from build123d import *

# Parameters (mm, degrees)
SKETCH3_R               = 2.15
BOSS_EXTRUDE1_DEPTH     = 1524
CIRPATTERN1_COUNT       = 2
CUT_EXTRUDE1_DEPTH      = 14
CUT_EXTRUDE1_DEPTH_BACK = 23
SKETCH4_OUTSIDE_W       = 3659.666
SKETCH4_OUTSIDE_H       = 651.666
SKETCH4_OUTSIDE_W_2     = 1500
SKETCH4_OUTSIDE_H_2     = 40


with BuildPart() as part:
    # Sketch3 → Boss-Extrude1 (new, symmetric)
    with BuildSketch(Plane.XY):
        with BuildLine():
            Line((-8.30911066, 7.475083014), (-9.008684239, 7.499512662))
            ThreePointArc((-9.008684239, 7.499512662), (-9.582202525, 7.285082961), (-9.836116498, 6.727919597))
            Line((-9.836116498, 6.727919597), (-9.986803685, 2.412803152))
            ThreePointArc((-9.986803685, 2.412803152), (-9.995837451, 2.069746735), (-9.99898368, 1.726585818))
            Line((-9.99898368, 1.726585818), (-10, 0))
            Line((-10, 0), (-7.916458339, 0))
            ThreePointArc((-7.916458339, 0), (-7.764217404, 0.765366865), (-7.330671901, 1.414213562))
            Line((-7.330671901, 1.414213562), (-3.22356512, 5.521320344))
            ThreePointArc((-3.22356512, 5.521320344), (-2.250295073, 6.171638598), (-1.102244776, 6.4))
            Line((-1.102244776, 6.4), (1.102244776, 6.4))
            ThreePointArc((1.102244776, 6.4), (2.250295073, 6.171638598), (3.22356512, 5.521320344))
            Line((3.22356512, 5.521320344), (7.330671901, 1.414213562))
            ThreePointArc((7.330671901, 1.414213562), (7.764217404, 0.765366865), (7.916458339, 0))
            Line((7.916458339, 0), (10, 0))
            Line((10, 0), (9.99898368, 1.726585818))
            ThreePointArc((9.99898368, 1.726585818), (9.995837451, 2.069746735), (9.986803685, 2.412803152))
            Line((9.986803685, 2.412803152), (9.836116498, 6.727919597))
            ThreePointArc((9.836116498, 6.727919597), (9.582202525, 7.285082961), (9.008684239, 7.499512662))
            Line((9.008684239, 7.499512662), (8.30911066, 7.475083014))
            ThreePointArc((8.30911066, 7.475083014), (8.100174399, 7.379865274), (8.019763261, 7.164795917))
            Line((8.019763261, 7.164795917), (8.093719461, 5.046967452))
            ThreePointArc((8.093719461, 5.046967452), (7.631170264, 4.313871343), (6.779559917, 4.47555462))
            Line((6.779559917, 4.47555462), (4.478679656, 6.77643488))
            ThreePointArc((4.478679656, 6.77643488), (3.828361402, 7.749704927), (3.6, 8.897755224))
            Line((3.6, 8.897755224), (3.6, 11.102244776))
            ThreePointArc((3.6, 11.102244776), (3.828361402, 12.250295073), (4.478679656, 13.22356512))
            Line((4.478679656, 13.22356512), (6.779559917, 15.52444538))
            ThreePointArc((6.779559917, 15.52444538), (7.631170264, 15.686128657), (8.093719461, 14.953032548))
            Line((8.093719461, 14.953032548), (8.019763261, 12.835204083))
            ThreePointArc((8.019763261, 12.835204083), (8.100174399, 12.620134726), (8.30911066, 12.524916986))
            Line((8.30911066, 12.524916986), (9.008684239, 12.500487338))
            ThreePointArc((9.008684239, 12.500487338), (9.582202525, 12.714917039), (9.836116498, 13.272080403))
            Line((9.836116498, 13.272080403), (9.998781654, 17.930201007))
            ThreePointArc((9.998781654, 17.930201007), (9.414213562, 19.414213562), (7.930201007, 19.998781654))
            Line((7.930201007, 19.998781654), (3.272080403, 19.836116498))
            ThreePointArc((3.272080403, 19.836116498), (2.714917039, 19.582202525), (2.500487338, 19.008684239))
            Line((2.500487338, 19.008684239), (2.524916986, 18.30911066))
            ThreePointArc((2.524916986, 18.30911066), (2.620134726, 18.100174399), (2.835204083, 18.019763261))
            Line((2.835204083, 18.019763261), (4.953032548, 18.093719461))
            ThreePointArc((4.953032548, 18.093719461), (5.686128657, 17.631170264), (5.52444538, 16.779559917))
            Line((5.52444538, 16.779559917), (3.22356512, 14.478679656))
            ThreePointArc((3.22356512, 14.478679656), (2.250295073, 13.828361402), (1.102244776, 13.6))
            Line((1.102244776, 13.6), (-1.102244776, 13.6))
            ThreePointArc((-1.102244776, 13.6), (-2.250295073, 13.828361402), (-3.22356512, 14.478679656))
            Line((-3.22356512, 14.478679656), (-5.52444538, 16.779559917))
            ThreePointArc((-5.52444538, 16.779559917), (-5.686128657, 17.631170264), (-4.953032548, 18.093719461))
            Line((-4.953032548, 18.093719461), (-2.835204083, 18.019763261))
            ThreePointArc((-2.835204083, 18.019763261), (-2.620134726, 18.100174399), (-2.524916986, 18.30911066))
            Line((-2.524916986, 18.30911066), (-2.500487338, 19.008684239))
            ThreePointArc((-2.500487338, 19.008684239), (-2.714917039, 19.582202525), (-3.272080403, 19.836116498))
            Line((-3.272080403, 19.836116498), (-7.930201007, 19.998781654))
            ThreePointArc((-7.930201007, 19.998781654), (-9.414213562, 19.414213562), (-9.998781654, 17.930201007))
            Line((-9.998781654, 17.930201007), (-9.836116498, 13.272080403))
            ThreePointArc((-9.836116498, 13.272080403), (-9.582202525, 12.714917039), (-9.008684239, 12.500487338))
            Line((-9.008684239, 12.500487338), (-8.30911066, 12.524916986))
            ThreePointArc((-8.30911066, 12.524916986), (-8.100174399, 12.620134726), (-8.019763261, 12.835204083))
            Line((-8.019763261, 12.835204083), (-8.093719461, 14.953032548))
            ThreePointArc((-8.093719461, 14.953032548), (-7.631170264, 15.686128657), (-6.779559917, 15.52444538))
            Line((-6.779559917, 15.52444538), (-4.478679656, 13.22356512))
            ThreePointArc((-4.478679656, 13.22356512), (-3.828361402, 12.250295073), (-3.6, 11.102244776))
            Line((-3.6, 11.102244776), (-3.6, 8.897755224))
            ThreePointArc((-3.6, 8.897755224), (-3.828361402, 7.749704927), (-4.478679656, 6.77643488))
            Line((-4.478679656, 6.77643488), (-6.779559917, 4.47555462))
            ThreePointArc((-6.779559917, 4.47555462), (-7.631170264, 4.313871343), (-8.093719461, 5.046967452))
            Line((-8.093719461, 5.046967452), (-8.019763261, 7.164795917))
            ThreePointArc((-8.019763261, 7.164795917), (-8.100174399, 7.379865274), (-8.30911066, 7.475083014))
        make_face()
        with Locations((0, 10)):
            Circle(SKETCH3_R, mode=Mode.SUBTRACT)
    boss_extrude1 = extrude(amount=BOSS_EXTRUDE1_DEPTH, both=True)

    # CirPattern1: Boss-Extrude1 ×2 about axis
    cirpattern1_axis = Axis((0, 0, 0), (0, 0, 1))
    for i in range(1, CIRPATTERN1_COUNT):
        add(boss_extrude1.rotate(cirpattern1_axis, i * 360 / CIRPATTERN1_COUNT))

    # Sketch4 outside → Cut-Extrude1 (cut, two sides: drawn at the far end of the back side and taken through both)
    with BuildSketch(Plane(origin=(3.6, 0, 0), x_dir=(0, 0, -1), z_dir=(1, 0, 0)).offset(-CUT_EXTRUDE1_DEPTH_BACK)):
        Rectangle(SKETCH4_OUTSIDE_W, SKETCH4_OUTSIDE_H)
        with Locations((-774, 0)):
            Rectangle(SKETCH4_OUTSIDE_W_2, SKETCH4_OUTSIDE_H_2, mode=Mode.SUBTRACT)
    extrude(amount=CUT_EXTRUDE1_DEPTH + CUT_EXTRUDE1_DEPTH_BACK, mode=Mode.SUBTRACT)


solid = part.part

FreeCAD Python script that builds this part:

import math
import FreeCAD as App
import Part
import Sketcher
Q = App.Units.Quantity

doc = App.newDocument("Part")
body = doc.addObject("PartDesign::Body", "Body")

# Sketch on XY plane
sketch1 = body.newObject("Sketcher::SketchObject", "Sketch")
sketch1.AttachmentSupport = (doc.getObject("XY_Plane"), [""])
sketch1.MapMode = "FlatFace"
sketch1.addGeometry([
    Part.LineSegment(App.Vector(-8.31, 7.48, 0), App.Vector(-9.01, 7.5, 0)),  # 0
    Part.ArcOfCircle(Part.Circle(App.Vector(-9.04, 6.7, 0), App.Vector(0, 0, 1), 0.8), math.radians(88), math.radians(178)),  # 1
    Part.LineSegment(App.Vector(-9.84, 6.73, 0), App.Vector(-9.99, 2.41, 0)),  # 2
    Part.ArcOfCircle(Part.Circle(App.Vector(10, 1.71, 0), App.Vector(0, 0, 1), 20), math.radians(178), math.radians(179.97)),  # 3
    Part.LineSegment(App.Vector(-10, 1.73, 0), App.Vector(-10, 0, 0)),  # 4
    Part.LineSegment(App.Vector(-10, 0, 0), App.Vector(-7.92, 0, 0)),  # 5
    Part.ArcOfCircle(Part.Circle(App.Vector(-5.92, 0, 0), App.Vector(0, 0, 1), 2), math.radians(135), math.radians(180)),  # 6
    Part.LineSegment(App.Vector(-7.33, 1.41, 0), App.Vector(-3.22, 5.52, 0)),  # 7
    Part.ArcOfCircle(Part.Circle(App.Vector(-1.1, 3.4, 0), App.Vector(0, 0, 1), 3), math.radians(90), math.radians(135)),  # 8
    Part.LineSegment(App.Vector(-1.1, 6.4, 0), App.Vector(1.1, 6.4, 0)),  # 9
    Part.ArcOfCircle(Part.Circle(App.Vector(1.1, 3.4, 0), App.Vector(0, 0, 1), 3), math.radians(45), math.radians(90)),  # 10
    Part.LineSegment(App.Vector(3.22, 5.52, 0), App.Vector(7.33, 1.41, 0)),  # 11
    Part.ArcOfCircle(Part.Circle(App.Vector(5.92, 0, 0), App.Vector(0, 0, 1), 2), math.radians(0), math.radians(45)),  # 12
    Part.LineSegment(App.Vector(7.92, 0, 0), App.Vector(10, 0, 0)),  # 13
    Part.LineSegment(App.Vector(10, 0, 0), App.Vector(10, 1.73, 0)),  # 14
    Part.ArcOfCircle(Part.Circle(App.Vector(-10, 1.71, 0), App.Vector(0, 0, 1), 20), math.radians(0.03), math.radians(2)),  # 15
    Part.LineSegment(App.Vector(9.99, 2.41, 0), App.Vector(9.84, 6.73, 0)),  # 16
    Part.ArcOfCircle(Part.Circle(App.Vector(9.04, 6.7, 0), App.Vector(0, 0, 1), 0.8), math.radians(2), math.radians(92)),  # 17
    Part.LineSegment(App.Vector(9.01, 7.5, 0), App.Vector(8.31, 7.48, 0)),  # 18
    Part.ArcOfCircle(Part.Circle(App.Vector(8.32, 7.18, 0), App.Vector(0, 0, 1), 0.3), math.radians(92), math.radians(182)),  # 19
    Part.LineSegment(App.Vector(8.02, 7.16, 0), App.Vector(8.09, 5.05, 0)),  # 20
    Part.ArcOfCircle(Part.Circle(App.Vector(7.32, 5.02, 0), App.Vector(0, 0, 1), 0.77), math.radians(-135), math.radians(2)),  # 21
    Part.LineSegment(App.Vector(6.78, 4.48, 0), App.Vector(4.48, 6.78, 0)),  # 22
    Part.ArcOfCircle(Part.Circle(App.Vector(6.6, 8.9, 0), App.Vector(0, 0, 1), 3), math.radians(180), math.radians(225)),  # 23
    Part.LineSegment(App.Vector(3.6, 8.9, 0), App.Vector(3.6, 11.1, 0)),  # 24
    Part.ArcOfCircle(Part.Circle(App.Vector(6.6, 11.1, 0), App.Vector(0, 0, 1), 3), math.radians(135), math.radians(180)),  # 25
    Part.LineSegment(App.Vector(4.48, 13.22, 0), App.Vector(6.78, 15.52, 0)),  # 26
    Part.ArcOfCircle(Part.Circle(App.Vector(7.32, 14.98, 0), App.Vector(0, 0, 1), 0.77), math.radians(-2), math.radians(135)),  # 27
    Part.LineSegment(App.Vector(8.09, 14.95, 0), App.Vector(8.02, 12.84, 0)),  # 28
    Part.ArcOfCircle(Part.Circle(App.Vector(8.32, 12.82, 0), App.Vector(0, 0, 1), 0.3), math.radians(178), math.radians(268)),  # 29
    Part.LineSegment(App.Vector(8.31, 12.52, 0), App.Vector(9.01, 12.5, 0)),  # 30
    Part.ArcOfCircle(Part.Circle(App.Vector(9.04, 13.3, 0), App.Vector(0, 0, 1), 0.8), math.radians(-92), math.radians(-2)),  # 31
    Part.LineSegment(App.Vector(9.84, 13.27, 0), App.Vector(10, 17.93, 0)),  # 32
    Part.ArcOfCircle(Part.Circle(App.Vector(8, 18, 0), App.Vector(0, 0, 1), 2), math.radians(-2), math.radians(92)),  # 33
    Part.LineSegment(App.Vector(7.93, 20, 0), App.Vector(3.27, 19.84, 0)),  # 34
    Part.ArcOfCircle(Part.Circle(App.Vector(3.3, 19.04, 0), App.Vector(0, 0, 1), 0.8), math.radians(92), math.radians(182)),  # 35
    Part.LineSegment(App.Vector(2.5, 19.01, 0), App.Vector(2.52, 18.31, 0)),  # 36
    Part.ArcOfCircle(Part.Circle(App.Vector(2.82, 18.32, 0), App.Vector(0, 0, 1), 0.3), math.radians(-178), math.radians(-88)),  # 37
    Part.LineSegment(App.Vector(2.84, 18.02, 0), App.Vector(4.95, 18.09, 0)),  # 38
    Part.ArcOfCircle(Part.Circle(App.Vector(4.98, 17.32, 0), App.Vector(0, 0, 1), 0.77), math.radians(-45), math.radians(92)),  # 39
    Part.LineSegment(App.Vector(5.52, 16.78, 0), App.Vector(3.22, 14.48, 0)),  # 40
    Part.ArcOfCircle(Part.Circle(App.Vector(1.1, 16.6, 0), App.Vector(0, 0, 1), 3), math.radians(-90), math.radians(-45)),  # 41
    Part.LineSegment(App.Vector(1.1, 13.6, 0), App.Vector(-1.1, 13.6, 0)),  # 42
    Part.ArcOfCircle(Part.Circle(App.Vector(-1.1, 16.6, 0), App.Vector(0, 0, 1), 3), math.radians(-135), math.radians(-90)),  # 43
    Part.LineSegment(App.Vector(-3.22, 14.48, 0), App.Vector(-5.52, 16.78, 0)),  # 44
    Part.ArcOfCircle(Part.Circle(App.Vector(-4.98, 17.32, 0), App.Vector(0, 0, 1), 0.77), math.radians(88), math.radians(225)),  # 45
    Part.LineSegment(App.Vector(-4.95, 18.09, 0), App.Vector(-2.84, 18.02, 0)),  # 46
    Part.ArcOfCircle(Part.Circle(App.Vector(-2.82, 18.32, 0), App.Vector(0, 0, 1), 0.3), math.radians(-92), math.radians(-2)),  # 47
    Part.LineSegment(App.Vector(-2.52, 18.31, 0), App.Vector(-2.5, 19.01, 0)),  # 48
    Part.ArcOfCircle(Part.Circle(App.Vector(-3.3, 19.04, 0), App.Vector(0, 0, 1), 0.8), math.radians(-2), math.radians(88)),  # 49
    Part.LineSegment(App.Vector(-3.27, 19.84, 0), App.Vector(-7.93, 20, 0)),  # 50
    Part.ArcOfCircle(Part.Circle(App.Vector(-8, 18, 0), App.Vector(0, 0, 1), 2), math.radians(88), math.radians(182)),  # 51
    Part.LineSegment(App.Vector(-10, 17.93, 0), App.Vector(-9.84, 13.27, 0)),  # 52
    Part.ArcOfCircle(Part.Circle(App.Vector(-9.04, 13.3, 0), App.Vector(0, 0, 1), 0.8), math.radians(-178), math.radians(-88)),  # 53
    Part.LineSegment(App.Vector(-9.01, 12.5, 0), App.Vector(-8.31, 12.52, 0)),  # 54
    Part.ArcOfCircle(Part.Circle(App.Vector(-8.32, 12.82, 0), App.Vector(0, 0, 1), 0.3), math.radians(-88), math.radians(2)),  # 55
    Part.LineSegment(App.Vector(-8.02, 12.84, 0), App.Vector(-8.09, 14.95, 0)),  # 56
    Part.ArcOfCircle(Part.Circle(App.Vector(-7.32, 14.98, 0), App.Vector(0, 0, 1), 0.77), math.radians(45), math.radians(182)),  # 57
    Part.LineSegment(App.Vector(-6.78, 15.52, 0), App.Vector(-4.48, 13.22, 0)),  # 58
    Part.ArcOfCircle(Part.Circle(App.Vector(-6.6, 11.1, 0), App.Vector(0, 0, 1), 3), math.radians(0), math.radians(45)),  # 59
    Part.LineSegment(App.Vector(-3.6, 11.1, 0), App.Vector(-3.6, 8.9, 0)),  # 60
    Part.ArcOfCircle(Part.Circle(App.Vector(-6.6, 8.9, 0), App.Vector(0, 0, 1), 3), math.radians(-45), math.radians(0)),  # 61
    Part.LineSegment(App.Vector(-4.48, 6.78, 0), App.Vector(-6.78, 4.48, 0)),  # 62
    Part.ArcOfCircle(Part.Circle(App.Vector(-7.32, 5.02, 0), App.Vector(0, 0, 1), 0.77), math.radians(178), math.radians(315)),  # 63
    Part.LineSegment(App.Vector(-8.09, 5.05, 0), App.Vector(-8.02, 7.16, 0)),  # 64
    Part.ArcOfCircle(Part.Circle(App.Vector(-8.32, 7.18, 0), App.Vector(0, 0, 1), 0.3), math.radians(-2), math.radians(88)),  # 65
    Part.Circle(App.Vector(0, 10, 0), App.Vector(0, 0, 1), 2.15),  # 66
], False)
sketch1.addConstraint([
    Sketcher.Constraint("Tangent", 0, 2, 1, 1),
    Sketcher.Constraint("Tangent", 1, 2, 2, 1),
    Sketcher.Constraint("Tangent", 2, 2, 3, 1),
    Sketcher.Constraint("Tangent", 3, 2, 4, 1),
    Sketcher.Constraint("Coincident", 4, 2, 5, 1),
    Sketcher.Constraint("Coincident", 5, 2, 6, 2),
    Sketcher.Constraint("Tangent", 6, 1, 7, 1),
    Sketcher.Constraint("Tangent", 7, 2, 8, 2),
    Sketcher.Constraint("Tangent", 8, 1, 9, 1),
    Sketcher.Constraint("Tangent", 9, 2, 10, 2),
    Sketcher.Constraint("Tangent", 10, 1, 11, 1),
    Sketcher.Constraint("Tangent", 11, 2, 12, 2),
    Sketcher.Constraint("Coincident", 12, 1, 13, 1),
    Sketcher.Constraint("Coincident", 13, 2, 14, 1),
    Sketcher.Constraint("Tangent", 14, 2, 15, 1),
    Sketcher.Constraint("Tangent", 15, 2, 16, 1),
    Sketcher.Constraint("Tangent", 16, 2, 17, 1),
    Sketcher.Constraint("Tangent", 17, 2, 18, 1),
    Sketcher.Constraint("Tangent", 18, 2, 19, 1),
    Sketcher.Constraint("Tangent", 19, 2, 20, 1),
    Sketcher.Constraint("Tangent", 20, 2, 21, 2),
    Sketcher.Constraint("Tangent", 21, 1, 22, 1),
    Sketcher.Constraint("Tangent", 22, 2, 23, 2),
    Sketcher.Constraint("Tangent", 23, 1, 24, 1),
    Sketcher.Constraint("Tangent", 24, 2, 25, 2),
    Sketcher.Constraint("Tangent", 25, 1, 26, 1),
    Sketcher.Constraint("Tangent", 26, 2, 27, 2),
    Sketcher.Constraint("Tangent", 27, 1, 28, 1),
    Sketcher.Constraint("Tangent", 28, 2, 29, 1),
    Sketcher.Constraint("Tangent", 29, 2, 30, 1),
    Sketcher.Constraint("Tangent", 30, 2, 31, 1),
    Sketcher.Constraint("Tangent", 31, 2, 32, 1),
    Sketcher.Constraint("Tangent", 32, 2, 33, 1),
    Sketcher.Constraint("Tangent", 33, 2, 34, 1),
    Sketcher.Constraint("Tangent", 34, 2, 35, 1),
    Sketcher.Constraint("Tangent", 35, 2, 36, 1),
    Sketcher.Constraint("Tangent", 36, 2, 37, 1),
    Sketcher.Constraint("Tangent", 37, 2, 38, 1),
    Sketcher.Constraint("Tangent", 38, 2, 39, 2),
    Sketcher.Constraint("Tangent", 39, 1, 40, 1),
    Sketcher.Constraint("Tangent", 40, 2, 41, 2),
    Sketcher.Constraint("Tangent", 41, 1, 42, 1),
    Sketcher.Constraint("Tangent", 42, 2, 43, 2),
    Sketcher.Constraint("Tangent", 43, 1, 44, 1),
    Sketcher.Constraint("Tangent", 44, 2, 45, 2),
    Sketcher.Constraint("Tangent", 45, 1, 46, 1),
    Sketcher.Constraint("Tangent", 46, 2, 47, 1),
    Sketcher.Constraint("Tangent", 47, 2, 48, 1),
    Sketcher.Constraint("Tangent", 48, 2, 49, 1),
    Sketcher.Constraint("Tangent", 49, 2, 50, 1),
    Sketcher.Constraint("Tangent", 50, 2, 51, 1),
    Sketcher.Constraint("Tangent", 51, 2, 52, 1),
    Sketcher.Constraint("Tangent", 52, 2, 53, 1),
    Sketcher.Constraint("Tangent", 53, 2, 54, 1),
    Sketcher.Constraint("Tangent", 54, 2, 55, 1),
    Sketcher.Constraint("Tangent", 55, 2, 56, 1),
    Sketcher.Constraint("Tangent", 56, 2, 57, 2),
    Sketcher.Constraint("Tangent", 57, 1, 58, 1),
    Sketcher.Constraint("Tangent", 58, 2, 59, 2),
    Sketcher.Constraint("Tangent", 59, 1, 60, 1),
    Sketcher.Constraint("Tangent", 60, 2, 61, 2),
    Sketcher.Constraint("Tangent", 61, 1, 62, 1),
    Sketcher.Constraint("Tangent", 62, 2, 63, 2),
    Sketcher.Constraint("Tangent", 63, 1, 64, 1),
    Sketcher.Constraint("Tangent", 64, 2, 65, 1),
    Sketcher.Constraint("Tangent", 65, 2, 0, 1),
    Sketcher.Constraint("Horizontal", 5),
    Sketcher.Constraint("Horizontal", 9),
    Sketcher.Constraint("Horizontal", 13),
    Sketcher.Constraint("Vertical", 24),
    Sketcher.Constraint("Horizontal", 42),
    Sketcher.Constraint("Vertical", 60),
    Sketcher.Constraint("Equal", 8, 10),
    Sketcher.Constraint("Equal", 6, 12),
    Sketcher.Constraint("Equal", 3, 15),
    Sketcher.Constraint("Equal", 1, 17),
    Sketcher.Constraint("Equal", 10, 23),
    Sketcher.Constraint("Equal", 23, 25),
    Sketcher.Constraint("Equal", 21, 27),
    Sketcher.Constraint("Equal", 19, 29),
    Sketcher.Constraint("Equal", 17, 31),
    Sketcher.Constraint("Equal", 12, 33),
    Sketcher.Constraint("Equal", 31, 35),
    Sketcher.Constraint("Equal", 29, 37),
    Sketcher.Constraint("Equal", 27, 39),
    Sketcher.Constraint("Equal", 25, 41),
    Sketcher.Constraint("Equal", 41, 43),
    Sketcher.Constraint("Equal", 39, 45),
    Sketcher.Constraint("Equal", 37, 47),
    Sketcher.Constraint("Equal", 35, 49),
    Sketcher.Constraint("Equal", 33, 51),
    Sketcher.Constraint("Equal", 49, 53),
    Sketcher.Constraint("Equal", 47, 55),
    Sketcher.Constraint("Equal", 45, 57),
    Sketcher.Constraint("Equal", 43, 59),
    Sketcher.Constraint("Equal", 59, 61),
    Sketcher.Constraint("Equal", 57, 63),
    Sketcher.Constraint("Equal", 55, 65),
    Sketcher.Constraint("Symmetric", 6, 3, 12, 3, -1, 1),
    Sketcher.Constraint("Symmetric", 4, 2, 13, 2, -1, 1),
    Sketcher.Constraint("Symmetric", 3, 3, 15, 3, -2),
    Sketcher.Constraint("Symmetric", 1, 3, 17, 3, -2),
    Sketcher.Constraint("Symmetric", 39, 3, 45, 3, -2),
    Sketcher.Constraint("Symmetric", 37, 3, 47, 3, -2),
    Sketcher.Constraint("Symmetric", 35, 3, 49, 3, -2),
    Sketcher.Constraint("Symmetric", 33, 3, 51, 3, -2),
    Sketcher.Constraint("Symmetric", 31, 3, 53, 3, -2),
    Sketcher.Constraint("Symmetric", 29, 3, 55, 3, -2),
    Sketcher.Constraint("Symmetric", 27, 3, 57, 3, -2),
    Sketcher.Constraint("Symmetric", 25, 3, 59, 3, -2),
    Sketcher.Constraint("Symmetric", 21, 3, 63, 3, -2),
    Sketcher.Constraint("Symmetric", 19, 3, 65, 3, -2),
    Sketcher.Constraint("Symmetric", 7, 2, 10, 1, -2),
    Sketcher.Constraint("PointOnObject", 66, 3, -2),
    Sketcher.Constraint("PointOnObject", 4, 2, -1),
    Sketcher.Constraint("Perpendicular", 0, 2),
    Sketcher.Constraint("Perpendicular", 7, 11),
    Sketcher.Constraint("Perpendicular", 18, 20),
    Sketcher.Constraint("Parallel", 11, 22),
    Sketcher.Constraint("Perpendicular", 22, 26),
    Sketcher.Constraint("Parallel", 2, 28),
    Sketcher.Constraint("Perpendicular", 28, 30),
    Sketcher.Constraint("Perpendicular", 30, 32),
    Sketcher.Constraint("Perpendicular", 20, 34),
    Sketcher.Constraint("Perpendicular", 34, 36),
    Sketcher.Constraint("Perpendicular", 36, 38),
    Sketcher.Constraint("Parallel", 26, 40),
    Sketcher.Constraint("Perpendicular", 40, 44),
    Sketcher.Constraint("Perpendicular", 58, 62),
    Sketcher.Constraint("Vertical", 21, 3, 27, 3),
    Sketcher.Constraint("Vertical", 19, 3, 29, 3),
    Sketcher.Constraint("Vertical", 17, 3, 31, 3),
    Sketcher.Constraint("Vertical", 10, 3, 41, 3),
    Sketcher.Constraint("Equal", 42, 24),
    Sketcher.Constraint("Equal", 32, 34),
    Sketcher.Constraint("Equal", 30, 36),
    Sketcher.Constraint("Equal", 28, 38),
    Sketcher.Constraint("Equal", 26, 40),
    Sketcher.Constraint("Radius", 6, Q("2 mm")),
    Sketcher.Constraint("Radius", 8, Q("3 mm")),
    Sketcher.Constraint("Diameter", 66, Q("4.3 mm")),
    Sketcher.Constraint("Radius", 1, Q("0.8 mm")),
    Sketcher.Constraint("Radius", 19, Q("0.3 mm")),
    Sketcher.Constraint("Angle", 0, Q("178 deg")),
    Sketcher.Constraint("DistanceX", -1, 1, 33, 3, Q("8 mm")),
    Sketcher.Constraint("DistanceY", -1, 1, 33, 3, Q("18 mm")),
    Sketcher.Constraint("DistanceY", -1, 1, 66, 3, Q("10 mm")),
    Sketcher.Constraint("DistanceX", 4, 2, -1, 1, Q("10 mm")),
    Sketcher.Constraint("Distance", 0, Q("0.7 mm")),
    Sketcher.Constraint("DistanceY", -1, 1, 1, 3, Q("6.7 mm")),
    Sketcher.Constraint("DistanceY", -1, 1, 8, 3, Q("3.4 mm")),
    Sketcher.Constraint("DistanceX", -1, 1, 23, 3, Q("6.6 mm")),
    Sketcher.Constraint("Radius", 21, Q("0.770092 mm")),
    Sketcher.Constraint("Radius", 3, Q("20.000005 mm")),
    Sketcher.Constraint("DistanceX", 5, 1, 5, 2, Q("2.083542 mm")),
    Sketcher.Constraint("Distance", 2, Q("4.317747 mm")),
])
pad1 = body.newObject("PartDesign::Pad", "Pad")
pad1.Profile = sketch1
pad1.Length = 3048
pad1.Midplane = True
doc.recompute()

polarpattern = body.newObject("PartDesign::PolarPattern", "PolarPattern")
polarpattern.Originals = [pad1]
polarpattern.Axis = (doc.getObject("Z_Axis"), [""])
polarpattern.Angle = 360
polarpattern.Occurrences = 2
body.Tip = polarpattern

# Sketch on YZ plane
sketch2 = body.newObject("Sketcher::SketchObject", "Sketch001")
sketch2.AttachmentSupport = (doc.getObject("YZ_Plane"), [""])
sketch2.MapMode = "FlatFace"
sketch2.AttachmentOffset = App.Placement(App.Vector(0, 0, 3.6), App.Rotation())
sketch2.addGeometry([
    Part.LineSegment(App.Vector(326, 1830, 0), App.Vector(-326, 1830, 0)),  # 0
    Part.LineSegment(App.Vector(-326, 1830, 0), App.Vector(-326, -1830, 0)),  # 1
    Part.LineSegment(App.Vector(-326, -1830, 0), App.Vector(326, -1830, 0)),  # 2
    Part.LineSegment(App.Vector(326, -1830, 0), App.Vector(326, 1830, 0)),  # 3
    Part.LineSegment(App.Vector(-20, 24, 0), App.Vector(-20, 1524, 0)),  # 4
    Part.LineSegment(App.Vector(-20, 1524, 0), App.Vector(20, 1524, 0)),  # 5
    Part.LineSegment(App.Vector(20, 1524, 0), App.Vector(20, 24, 0)),  # 6
    Part.LineSegment(App.Vector(20, 24, 0), App.Vector(-20, 24, 0)),  # 7
], False)
sketch2.addConstraint([
    Sketcher.Constraint("Coincident", 0, 2, 1, 1),
    Sketcher.Constraint("Coincident", 1, 2, 2, 1),
    Sketcher.Constraint("Coincident", 2, 2, 3, 1),
    Sketcher.Constraint("Coincident", 3, 2, 0, 1),
    Sketcher.Constraint("Coincident", 4, 2, 5, 1),
    Sketcher.Constraint("Coincident", 5, 2, 6, 1),
    Sketcher.Constraint("Coincident", 6, 2, 7, 1),
    Sketcher.Constraint("Coincident", 7, 2, 4, 1),
    Sketcher.Constraint("Horizontal", 0),
    Sketcher.Constraint("Vertical", 1),
    Sketcher.Constraint("Horizontal", 2),
    Sketcher.Constraint("Vertical", 3),
    Sketcher.Constraint("Vertical", 4),
    Sketcher.Constraint("Horizontal", 5),
    Sketcher.Constraint("Vertical", 6),
    Sketcher.Constraint("Horizontal", 7),
    Sketcher.Constraint("Symmetric", 0, 2, 2, 2, -1, 1),
    Sketcher.Constraint("DistanceX", 5, 1, 5, 2, Q("40 mm")),
    Sketcher.Constraint("DistanceY", 4, 1, 4, 2, Q("1500 mm")),
    Sketcher.Constraint("DistanceX", 4, 2, -1, 1, Q("20 mm")),
    Sketcher.Constraint("DistanceY", -1, 1, 4, 2, Q("1524 mm")),
    Sketcher.Constraint("DistanceX", 0, 2, 0, 1, Q("651.666 mm")),
    Sketcher.Constraint("DistanceY", 1, 2, 1, 1, Q("3659.666 mm")),
])
pocket1 = body.newObject("PartDesign::Pocket", "Pocket")
pocket1.Profile = sketch2
pocket1.Type = "ThroughAll"
pocket1.Midplane = True

doc.recompute()
